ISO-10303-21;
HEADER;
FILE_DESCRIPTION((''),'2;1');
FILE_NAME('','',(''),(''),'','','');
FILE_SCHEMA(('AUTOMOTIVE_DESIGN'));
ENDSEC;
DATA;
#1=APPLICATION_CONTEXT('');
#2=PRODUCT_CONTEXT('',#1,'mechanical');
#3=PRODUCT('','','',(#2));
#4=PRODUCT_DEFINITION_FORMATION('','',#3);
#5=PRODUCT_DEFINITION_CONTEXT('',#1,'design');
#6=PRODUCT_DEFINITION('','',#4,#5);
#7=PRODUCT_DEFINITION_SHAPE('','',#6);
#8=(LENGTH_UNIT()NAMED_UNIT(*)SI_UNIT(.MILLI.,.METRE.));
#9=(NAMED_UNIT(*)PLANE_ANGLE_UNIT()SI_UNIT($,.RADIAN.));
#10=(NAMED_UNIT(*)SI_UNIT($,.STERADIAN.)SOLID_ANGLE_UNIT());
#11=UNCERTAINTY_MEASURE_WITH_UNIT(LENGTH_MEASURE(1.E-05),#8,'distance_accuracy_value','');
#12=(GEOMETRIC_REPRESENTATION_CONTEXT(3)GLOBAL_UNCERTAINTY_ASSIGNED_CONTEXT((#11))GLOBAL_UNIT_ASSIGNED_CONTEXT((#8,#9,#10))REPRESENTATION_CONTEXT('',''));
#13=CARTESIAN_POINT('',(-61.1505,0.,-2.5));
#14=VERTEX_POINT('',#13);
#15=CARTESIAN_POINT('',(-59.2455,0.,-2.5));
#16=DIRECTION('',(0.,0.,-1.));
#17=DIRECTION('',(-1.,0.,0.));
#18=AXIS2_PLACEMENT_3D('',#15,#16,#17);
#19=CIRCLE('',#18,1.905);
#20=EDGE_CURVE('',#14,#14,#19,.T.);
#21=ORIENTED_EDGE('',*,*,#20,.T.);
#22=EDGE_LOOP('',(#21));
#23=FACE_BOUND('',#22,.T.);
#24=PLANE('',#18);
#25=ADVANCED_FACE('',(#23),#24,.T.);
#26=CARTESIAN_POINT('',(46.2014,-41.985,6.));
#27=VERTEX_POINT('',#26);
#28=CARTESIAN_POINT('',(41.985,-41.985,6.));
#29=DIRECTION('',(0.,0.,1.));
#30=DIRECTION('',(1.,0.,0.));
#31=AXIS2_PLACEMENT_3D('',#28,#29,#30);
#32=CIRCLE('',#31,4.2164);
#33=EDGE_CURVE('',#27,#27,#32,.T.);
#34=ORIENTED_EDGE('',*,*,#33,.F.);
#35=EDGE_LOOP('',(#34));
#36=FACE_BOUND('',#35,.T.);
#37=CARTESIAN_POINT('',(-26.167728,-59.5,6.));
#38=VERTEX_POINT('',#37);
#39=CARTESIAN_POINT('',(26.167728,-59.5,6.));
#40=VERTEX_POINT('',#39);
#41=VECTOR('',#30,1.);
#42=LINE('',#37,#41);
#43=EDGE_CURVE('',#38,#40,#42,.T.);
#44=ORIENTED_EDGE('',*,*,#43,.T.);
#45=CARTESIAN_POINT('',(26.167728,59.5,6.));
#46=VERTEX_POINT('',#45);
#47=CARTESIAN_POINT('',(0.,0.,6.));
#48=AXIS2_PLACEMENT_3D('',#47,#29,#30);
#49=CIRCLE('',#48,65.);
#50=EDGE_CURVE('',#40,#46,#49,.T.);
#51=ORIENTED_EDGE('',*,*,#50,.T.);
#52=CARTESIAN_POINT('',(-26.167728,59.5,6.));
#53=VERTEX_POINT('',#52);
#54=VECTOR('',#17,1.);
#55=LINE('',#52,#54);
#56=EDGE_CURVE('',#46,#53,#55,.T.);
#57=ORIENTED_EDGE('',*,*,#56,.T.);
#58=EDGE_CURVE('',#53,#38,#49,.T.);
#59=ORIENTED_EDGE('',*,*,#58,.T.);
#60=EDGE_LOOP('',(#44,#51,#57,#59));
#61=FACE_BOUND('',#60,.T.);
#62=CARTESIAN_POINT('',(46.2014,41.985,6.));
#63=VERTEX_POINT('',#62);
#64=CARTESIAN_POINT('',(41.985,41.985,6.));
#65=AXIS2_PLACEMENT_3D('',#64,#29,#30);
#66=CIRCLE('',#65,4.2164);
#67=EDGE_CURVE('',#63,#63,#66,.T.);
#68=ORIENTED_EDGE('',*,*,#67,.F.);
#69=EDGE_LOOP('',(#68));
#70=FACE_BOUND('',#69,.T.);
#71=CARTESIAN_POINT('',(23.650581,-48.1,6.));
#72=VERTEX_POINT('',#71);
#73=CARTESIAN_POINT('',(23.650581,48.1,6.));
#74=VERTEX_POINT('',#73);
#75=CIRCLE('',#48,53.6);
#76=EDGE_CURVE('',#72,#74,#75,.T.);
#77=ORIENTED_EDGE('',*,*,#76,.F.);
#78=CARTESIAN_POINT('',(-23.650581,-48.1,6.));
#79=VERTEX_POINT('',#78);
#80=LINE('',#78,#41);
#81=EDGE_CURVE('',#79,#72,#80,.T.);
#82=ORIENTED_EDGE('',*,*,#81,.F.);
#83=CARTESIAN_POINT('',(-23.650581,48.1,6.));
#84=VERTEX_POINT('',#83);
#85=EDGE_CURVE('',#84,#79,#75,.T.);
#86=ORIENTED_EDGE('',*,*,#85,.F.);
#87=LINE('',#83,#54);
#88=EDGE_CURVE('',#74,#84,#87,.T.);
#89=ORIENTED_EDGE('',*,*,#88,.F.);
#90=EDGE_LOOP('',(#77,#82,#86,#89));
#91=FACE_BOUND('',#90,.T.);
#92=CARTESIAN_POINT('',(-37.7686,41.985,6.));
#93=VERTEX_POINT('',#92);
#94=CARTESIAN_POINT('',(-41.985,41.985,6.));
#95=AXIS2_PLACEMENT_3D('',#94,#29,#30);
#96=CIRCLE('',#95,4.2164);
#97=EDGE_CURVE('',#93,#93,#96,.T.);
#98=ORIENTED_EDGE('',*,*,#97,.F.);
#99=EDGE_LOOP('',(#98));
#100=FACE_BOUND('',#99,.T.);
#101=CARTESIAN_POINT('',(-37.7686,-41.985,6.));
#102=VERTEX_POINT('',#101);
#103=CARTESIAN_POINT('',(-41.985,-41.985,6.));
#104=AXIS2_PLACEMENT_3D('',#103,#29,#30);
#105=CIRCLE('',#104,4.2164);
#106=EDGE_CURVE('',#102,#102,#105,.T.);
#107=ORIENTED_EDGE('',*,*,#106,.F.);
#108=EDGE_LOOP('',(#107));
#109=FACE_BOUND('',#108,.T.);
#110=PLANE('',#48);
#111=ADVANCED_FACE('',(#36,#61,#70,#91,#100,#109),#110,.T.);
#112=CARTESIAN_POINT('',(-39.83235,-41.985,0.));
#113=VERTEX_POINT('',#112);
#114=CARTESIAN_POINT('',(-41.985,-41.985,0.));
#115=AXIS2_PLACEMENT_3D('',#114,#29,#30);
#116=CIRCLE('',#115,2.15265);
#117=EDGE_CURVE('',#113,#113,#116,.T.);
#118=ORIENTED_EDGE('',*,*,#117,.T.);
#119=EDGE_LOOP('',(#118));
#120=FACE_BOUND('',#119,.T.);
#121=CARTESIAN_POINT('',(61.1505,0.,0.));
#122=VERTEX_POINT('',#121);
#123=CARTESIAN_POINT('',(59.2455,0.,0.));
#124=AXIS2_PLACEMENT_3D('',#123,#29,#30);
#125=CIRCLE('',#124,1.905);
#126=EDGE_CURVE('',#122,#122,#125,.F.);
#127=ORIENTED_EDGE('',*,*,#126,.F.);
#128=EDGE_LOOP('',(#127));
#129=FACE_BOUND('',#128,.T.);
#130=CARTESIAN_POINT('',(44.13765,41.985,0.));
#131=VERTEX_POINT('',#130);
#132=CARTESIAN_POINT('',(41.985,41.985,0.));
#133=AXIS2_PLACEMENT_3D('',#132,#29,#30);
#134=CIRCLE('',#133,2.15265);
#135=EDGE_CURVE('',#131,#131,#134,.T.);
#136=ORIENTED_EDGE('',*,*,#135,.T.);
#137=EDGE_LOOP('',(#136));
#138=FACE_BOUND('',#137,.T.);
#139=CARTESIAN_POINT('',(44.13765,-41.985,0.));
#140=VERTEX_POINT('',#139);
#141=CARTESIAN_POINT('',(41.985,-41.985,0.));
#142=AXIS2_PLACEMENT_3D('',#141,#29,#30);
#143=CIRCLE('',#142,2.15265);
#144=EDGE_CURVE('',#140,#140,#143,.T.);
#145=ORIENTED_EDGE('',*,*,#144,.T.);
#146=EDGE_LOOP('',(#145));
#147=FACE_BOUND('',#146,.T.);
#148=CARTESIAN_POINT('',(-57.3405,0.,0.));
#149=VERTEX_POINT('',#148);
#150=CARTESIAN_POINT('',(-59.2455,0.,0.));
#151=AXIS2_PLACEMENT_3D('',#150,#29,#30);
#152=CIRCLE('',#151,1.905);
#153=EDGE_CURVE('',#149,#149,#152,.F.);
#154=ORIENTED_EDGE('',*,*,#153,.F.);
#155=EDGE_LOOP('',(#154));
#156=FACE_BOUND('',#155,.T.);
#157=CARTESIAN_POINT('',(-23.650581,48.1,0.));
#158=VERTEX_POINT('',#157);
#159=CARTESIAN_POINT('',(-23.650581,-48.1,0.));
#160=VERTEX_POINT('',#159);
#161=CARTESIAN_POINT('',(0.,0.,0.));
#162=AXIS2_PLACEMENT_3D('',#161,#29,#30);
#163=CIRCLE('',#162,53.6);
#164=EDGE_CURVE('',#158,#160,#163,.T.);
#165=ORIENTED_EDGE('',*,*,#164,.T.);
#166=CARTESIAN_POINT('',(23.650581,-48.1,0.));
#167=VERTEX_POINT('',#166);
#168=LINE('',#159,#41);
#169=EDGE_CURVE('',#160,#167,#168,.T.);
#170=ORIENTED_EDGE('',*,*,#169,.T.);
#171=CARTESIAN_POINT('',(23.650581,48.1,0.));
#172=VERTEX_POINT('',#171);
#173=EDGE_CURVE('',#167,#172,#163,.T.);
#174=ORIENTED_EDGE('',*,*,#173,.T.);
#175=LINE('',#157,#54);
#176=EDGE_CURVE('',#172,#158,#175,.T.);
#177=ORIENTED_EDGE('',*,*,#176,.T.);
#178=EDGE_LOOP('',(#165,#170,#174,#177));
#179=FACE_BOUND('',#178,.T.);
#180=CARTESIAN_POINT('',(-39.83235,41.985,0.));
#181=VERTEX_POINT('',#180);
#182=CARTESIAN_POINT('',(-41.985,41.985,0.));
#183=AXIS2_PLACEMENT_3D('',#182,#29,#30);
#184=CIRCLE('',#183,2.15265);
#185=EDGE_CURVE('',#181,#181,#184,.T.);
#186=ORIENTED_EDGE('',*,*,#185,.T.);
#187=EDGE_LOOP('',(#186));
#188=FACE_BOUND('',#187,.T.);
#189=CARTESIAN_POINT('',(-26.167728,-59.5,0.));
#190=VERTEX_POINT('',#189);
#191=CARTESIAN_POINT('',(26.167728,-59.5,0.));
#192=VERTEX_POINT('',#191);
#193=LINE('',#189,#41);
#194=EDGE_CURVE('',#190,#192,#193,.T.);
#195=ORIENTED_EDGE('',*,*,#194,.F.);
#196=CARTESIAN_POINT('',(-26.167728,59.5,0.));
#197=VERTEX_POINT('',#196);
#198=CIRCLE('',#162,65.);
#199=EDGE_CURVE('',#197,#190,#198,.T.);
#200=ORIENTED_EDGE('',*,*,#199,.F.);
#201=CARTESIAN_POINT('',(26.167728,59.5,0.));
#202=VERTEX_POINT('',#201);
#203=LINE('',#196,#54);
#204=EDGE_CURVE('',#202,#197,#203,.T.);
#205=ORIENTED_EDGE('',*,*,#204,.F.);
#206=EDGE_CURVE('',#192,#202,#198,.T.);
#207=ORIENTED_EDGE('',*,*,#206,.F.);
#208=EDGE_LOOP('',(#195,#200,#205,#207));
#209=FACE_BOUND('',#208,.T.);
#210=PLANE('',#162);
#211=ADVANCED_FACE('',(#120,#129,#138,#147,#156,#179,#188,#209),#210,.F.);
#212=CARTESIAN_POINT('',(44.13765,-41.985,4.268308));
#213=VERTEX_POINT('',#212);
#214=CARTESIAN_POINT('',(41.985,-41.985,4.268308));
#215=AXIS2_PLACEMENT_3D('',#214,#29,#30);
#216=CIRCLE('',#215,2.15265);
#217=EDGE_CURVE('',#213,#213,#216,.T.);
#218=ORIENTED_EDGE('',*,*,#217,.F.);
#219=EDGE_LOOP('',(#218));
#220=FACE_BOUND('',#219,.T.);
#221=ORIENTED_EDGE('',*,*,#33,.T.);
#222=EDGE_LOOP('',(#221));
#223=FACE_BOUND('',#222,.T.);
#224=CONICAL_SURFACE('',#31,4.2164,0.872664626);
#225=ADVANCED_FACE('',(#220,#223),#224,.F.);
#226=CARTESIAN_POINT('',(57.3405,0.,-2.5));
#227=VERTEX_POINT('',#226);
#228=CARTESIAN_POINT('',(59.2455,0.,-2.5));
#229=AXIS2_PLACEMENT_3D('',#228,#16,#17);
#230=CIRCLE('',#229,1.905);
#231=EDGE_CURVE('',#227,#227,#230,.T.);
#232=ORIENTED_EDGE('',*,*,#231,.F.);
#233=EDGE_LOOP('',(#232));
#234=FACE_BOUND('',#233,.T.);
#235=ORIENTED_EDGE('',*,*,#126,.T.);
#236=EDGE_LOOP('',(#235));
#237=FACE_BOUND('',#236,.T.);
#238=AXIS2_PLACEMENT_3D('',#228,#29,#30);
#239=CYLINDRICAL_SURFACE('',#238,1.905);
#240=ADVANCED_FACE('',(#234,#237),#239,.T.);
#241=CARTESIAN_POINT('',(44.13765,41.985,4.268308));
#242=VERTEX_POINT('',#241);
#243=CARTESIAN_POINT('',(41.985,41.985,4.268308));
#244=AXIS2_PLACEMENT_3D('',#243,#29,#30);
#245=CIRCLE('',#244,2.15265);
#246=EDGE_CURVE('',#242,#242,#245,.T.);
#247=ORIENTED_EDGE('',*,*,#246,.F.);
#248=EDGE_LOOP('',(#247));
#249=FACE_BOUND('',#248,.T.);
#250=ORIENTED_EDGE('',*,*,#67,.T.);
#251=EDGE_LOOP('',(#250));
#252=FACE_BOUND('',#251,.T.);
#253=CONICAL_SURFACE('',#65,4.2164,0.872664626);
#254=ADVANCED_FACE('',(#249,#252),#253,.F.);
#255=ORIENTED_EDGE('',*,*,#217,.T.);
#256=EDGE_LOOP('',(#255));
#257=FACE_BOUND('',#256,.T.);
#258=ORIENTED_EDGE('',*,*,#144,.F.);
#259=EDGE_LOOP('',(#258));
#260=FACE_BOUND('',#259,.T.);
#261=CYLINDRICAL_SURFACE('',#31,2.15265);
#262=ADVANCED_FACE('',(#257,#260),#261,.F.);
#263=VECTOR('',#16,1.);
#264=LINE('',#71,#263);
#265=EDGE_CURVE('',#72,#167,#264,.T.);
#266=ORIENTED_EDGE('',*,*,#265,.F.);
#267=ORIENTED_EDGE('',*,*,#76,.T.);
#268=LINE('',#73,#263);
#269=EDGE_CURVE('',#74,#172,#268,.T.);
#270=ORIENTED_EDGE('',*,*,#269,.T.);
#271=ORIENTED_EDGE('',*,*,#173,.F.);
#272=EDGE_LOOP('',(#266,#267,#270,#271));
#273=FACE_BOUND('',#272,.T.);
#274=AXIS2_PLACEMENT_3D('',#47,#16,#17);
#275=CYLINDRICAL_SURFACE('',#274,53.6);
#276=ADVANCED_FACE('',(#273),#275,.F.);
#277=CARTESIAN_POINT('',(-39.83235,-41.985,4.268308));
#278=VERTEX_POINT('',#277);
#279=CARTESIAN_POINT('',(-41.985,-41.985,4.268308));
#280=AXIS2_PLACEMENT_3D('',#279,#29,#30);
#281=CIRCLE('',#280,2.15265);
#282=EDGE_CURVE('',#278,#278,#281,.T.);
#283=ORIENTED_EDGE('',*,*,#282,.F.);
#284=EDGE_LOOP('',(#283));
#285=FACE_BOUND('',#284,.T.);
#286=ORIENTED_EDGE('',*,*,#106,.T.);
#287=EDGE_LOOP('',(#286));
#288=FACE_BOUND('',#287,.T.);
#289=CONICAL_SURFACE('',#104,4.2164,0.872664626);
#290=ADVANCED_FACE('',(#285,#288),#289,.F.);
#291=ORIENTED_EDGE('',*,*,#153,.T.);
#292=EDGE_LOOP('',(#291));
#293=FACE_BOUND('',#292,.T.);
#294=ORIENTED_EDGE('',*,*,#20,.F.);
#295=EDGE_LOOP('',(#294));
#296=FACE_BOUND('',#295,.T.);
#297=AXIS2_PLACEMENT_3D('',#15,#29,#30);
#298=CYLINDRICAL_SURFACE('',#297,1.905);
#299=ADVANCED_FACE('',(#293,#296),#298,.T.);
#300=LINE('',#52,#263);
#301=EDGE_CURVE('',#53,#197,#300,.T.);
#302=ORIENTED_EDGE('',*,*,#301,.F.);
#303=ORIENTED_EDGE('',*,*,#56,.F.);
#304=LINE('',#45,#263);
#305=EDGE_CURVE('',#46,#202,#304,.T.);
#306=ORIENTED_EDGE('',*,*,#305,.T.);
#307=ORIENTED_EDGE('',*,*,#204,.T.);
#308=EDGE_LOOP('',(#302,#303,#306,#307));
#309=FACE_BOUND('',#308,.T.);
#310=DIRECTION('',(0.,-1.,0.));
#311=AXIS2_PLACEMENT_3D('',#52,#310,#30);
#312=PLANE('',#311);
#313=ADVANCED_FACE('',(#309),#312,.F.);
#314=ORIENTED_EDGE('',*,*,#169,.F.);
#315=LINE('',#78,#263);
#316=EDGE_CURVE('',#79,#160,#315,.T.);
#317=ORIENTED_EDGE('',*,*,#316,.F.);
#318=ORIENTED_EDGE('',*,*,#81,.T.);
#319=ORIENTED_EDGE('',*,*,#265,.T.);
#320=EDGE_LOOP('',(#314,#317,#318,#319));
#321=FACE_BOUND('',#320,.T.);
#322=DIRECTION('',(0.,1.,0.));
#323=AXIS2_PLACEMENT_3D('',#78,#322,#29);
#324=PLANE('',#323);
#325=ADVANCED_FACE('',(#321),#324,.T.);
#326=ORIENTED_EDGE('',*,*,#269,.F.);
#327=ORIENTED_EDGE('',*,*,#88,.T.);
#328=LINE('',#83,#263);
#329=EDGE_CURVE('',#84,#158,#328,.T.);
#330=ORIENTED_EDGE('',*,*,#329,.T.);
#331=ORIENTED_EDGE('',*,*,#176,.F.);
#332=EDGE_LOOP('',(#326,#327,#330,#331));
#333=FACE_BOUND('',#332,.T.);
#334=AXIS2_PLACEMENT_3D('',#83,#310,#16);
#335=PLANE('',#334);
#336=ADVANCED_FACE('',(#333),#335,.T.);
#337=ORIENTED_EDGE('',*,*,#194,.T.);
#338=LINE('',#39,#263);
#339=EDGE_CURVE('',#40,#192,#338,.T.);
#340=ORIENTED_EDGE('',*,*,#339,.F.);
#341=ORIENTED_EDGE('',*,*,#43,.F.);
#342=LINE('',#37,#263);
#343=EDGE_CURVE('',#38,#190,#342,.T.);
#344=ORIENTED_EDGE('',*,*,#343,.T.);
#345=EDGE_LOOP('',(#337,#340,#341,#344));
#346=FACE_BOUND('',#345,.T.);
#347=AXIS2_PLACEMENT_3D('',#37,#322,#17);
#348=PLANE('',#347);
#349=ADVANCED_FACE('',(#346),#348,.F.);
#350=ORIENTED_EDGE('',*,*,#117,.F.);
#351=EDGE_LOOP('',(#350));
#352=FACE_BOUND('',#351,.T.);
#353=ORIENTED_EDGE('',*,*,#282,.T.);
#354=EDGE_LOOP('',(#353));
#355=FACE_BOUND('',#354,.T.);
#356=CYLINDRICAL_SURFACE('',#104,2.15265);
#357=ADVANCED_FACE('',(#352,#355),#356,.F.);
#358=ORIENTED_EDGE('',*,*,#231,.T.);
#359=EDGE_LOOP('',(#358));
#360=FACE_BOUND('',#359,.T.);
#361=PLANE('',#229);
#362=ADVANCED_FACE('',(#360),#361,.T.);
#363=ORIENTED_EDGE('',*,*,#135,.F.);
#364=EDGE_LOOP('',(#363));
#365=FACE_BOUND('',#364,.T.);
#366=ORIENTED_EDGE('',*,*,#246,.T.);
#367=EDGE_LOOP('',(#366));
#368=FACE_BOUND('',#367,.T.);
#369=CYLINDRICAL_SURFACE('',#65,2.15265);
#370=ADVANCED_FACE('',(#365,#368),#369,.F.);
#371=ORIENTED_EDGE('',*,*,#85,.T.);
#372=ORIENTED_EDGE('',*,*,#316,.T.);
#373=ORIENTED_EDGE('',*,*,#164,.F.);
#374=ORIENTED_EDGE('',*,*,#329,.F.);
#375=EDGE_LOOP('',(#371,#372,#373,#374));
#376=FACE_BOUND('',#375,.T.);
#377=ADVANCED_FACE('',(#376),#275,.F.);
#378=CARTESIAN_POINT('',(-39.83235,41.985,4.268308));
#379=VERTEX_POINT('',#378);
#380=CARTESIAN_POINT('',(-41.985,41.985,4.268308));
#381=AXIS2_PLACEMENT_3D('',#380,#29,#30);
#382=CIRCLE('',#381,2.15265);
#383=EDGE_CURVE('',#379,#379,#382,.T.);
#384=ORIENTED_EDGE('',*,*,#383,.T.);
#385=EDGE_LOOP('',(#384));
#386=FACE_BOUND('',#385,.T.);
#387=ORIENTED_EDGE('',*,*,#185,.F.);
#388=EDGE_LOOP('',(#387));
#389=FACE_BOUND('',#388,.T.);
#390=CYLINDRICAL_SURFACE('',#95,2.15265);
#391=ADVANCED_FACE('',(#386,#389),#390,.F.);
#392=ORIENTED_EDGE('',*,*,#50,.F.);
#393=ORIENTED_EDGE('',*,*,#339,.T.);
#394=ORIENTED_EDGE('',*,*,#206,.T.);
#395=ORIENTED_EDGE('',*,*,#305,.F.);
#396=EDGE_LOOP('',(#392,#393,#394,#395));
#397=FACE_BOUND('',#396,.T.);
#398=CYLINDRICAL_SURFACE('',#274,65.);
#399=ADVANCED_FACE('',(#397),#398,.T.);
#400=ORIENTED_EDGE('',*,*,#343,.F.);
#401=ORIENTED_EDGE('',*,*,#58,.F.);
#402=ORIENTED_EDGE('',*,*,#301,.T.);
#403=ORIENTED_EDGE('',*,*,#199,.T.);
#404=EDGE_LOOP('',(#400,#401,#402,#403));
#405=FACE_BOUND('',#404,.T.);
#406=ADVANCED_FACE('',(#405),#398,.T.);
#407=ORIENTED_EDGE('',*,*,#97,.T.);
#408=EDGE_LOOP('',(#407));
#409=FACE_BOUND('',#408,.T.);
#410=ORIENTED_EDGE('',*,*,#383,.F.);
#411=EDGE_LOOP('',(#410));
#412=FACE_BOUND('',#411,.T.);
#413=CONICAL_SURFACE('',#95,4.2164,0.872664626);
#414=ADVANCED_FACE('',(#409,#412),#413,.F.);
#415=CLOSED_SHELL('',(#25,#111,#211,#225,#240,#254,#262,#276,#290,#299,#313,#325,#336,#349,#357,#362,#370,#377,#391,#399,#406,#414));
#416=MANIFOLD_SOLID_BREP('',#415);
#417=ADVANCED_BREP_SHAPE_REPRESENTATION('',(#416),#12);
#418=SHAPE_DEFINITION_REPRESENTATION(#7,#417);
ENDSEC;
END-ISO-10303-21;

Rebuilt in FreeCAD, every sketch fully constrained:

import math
import FreeCAD as App
import Part
import Sketcher

V = App.Vector
Q = App.Units.Quantity

doc = App.newDocument("Part")
params = doc.addObject("Spreadsheet::Sheet", "Params")
for row, (alias, value) in enumerate([
    ("sketch1_radius", "65 mm"),
    ("sketch1_radius2", "53.6 mm"),
    ("pad1_length", "6 mm"),
    ("hole_diameter", "4.3053 mm"),
    ("hole_csink_diameter", "8.4328 mm"),
    ("sketch3_diameter", "3.81 mm"),
    ("pad2_length", "2.5 mm"),
], start=1):
    params.set(f"A{row}", alias)
    params.set(f"B{row}", "=" + value)
    params.setAlias(f"B{row}", alias)

body = doc.addObject("PartDesign::Body", "Body")

# Sketch on XY plane
sketch1 = body.newObject("Sketcher::SketchObject", "Sketch")
sketch1.AttachmentSupport = (doc.getObject("XY_Plane"), [""])
sketch1.MapMode = "FlatFace"
sketch1.addGeometry([
    Part.LineSegment(V(26, 60, 0), V(-26, 60, 0)),  # 0
    Part.ArcOfCircle(Part.Circle(V(0, 0, 0), V(0, 0, 1), 65), math.radians(114), math.radians(246)),  # 1
    Part.LineSegment(V(-26, -60, 0), V(26, -60, 0)),  # 2
    Part.ArcOfCircle(Part.Circle(V(0, 0, 0), V(0, 0, 1), 65), math.radians(-66), math.radians(66)),  # 3
    Part.LineSegment(V(-24, 48, 0), V(24, 48, 0)),  # 4
    Part.ArcOfCircle(Part.Circle(V(0, 0, 0), V(0, 0, 1), 54), math.radians(-64), math.radians(64)),  # 5
    Part.LineSegment(V(24, -48, 0), V(-24, -48, 0)),  # 6
    Part.ArcOfCircle(Part.Circle(V(0, 0, 0), V(0, 0, 1), 54), math.radians(116), math.radians(244)),  # 7
], False)
sketch1.addConstraint([
    Sketcher.Constraint("Coincident", 0, 2, 1, 1),
    Sketcher.Constraint("Coincident", 1, 2, 2, 1),
    Sketcher.Constraint("Coincident", 2, 2, 3, 1),
    Sketcher.Constraint("Coincident", 3, 2, 0, 1),
    Sketcher.Constraint("Coincident", 4, 2, 5, 2),
    Sketcher.Constraint("Coincident", 5, 1, 6, 1),
    Sketcher.Constraint("Coincident", 6, 2, 7, 2),
    Sketcher.Constraint("Coincident", 7, 1, 4, 1),
    Sketcher.Constraint("Horizontal", 0),
    Sketcher.Constraint("Horizontal", 2),
    Sketcher.Constraint("Horizontal", 4),
    Sketcher.Constraint("Horizontal", 6),
    Sketcher.Constraint("Coincident", 1, 3, -1, 1),
    Sketcher.Constraint("Coincident", 3, 3, -1, 1),
    Sketcher.Constraint("Coincident", 5, 3, -1, 1),
    Sketcher.Constraint("Coincident", 7, 3, -1, 1),
    Sketcher.Constraint("Equal", 1, 3),
    Sketcher.Constraint("Equal", 5, 7),
    Sketcher.Constraint("Vertical", 0, 2, 1, 2),
    Sketcher.Constraint("Vertical", 4, 2, 5, 1),
    Sketcher.Constraint("Radius", 1, Q("65 mm")),
    Sketcher.Constraint("Radius", 5, Q("53.6 mm")),
    Sketcher.Constraint("DistanceY", 1, 2, 0, 2, Q("119 mm")),
    Sketcher.Constraint("DistanceY", -1, 1, 4, 2, Q("48.1 mm")),
])
sketch1.setExpression("Constraints[20]", "Params.sketch1_radius")
sketch1.setExpression("Constraints[21]", "Params.sketch1_radius2")
pad1 = body.newObject("PartDesign::Pad", "Pad")
pad1.Profile = sketch1
pad1.setExpression("Length", "Params.pad1_length")

# Sketch on XY plane
sketch2 = body.newObject("Sketcher::SketchObject", "Sketch001")
sketch2.AttachmentSupport = (doc.getObject("XY_Plane"), [""])
sketch2.MapMode = "FlatFace"
sketch2.AttachmentOffset = App.Placement(V(0, 0, 6), App.Rotation())
sketch2.addGeometry([
    Part.Circle(V(0, 0, 0), V(0, 0, 1), 2.2),  # 0
    Part.Circle(V(42, 42, 0), V(0, 0, 1), 2.2),  # 1
    Part.Circle(V(-42, -42, 0), V(0, 0, 1), 2.2),  # 2
    Part.Circle(V(-42, 42, 0), V(0, 0, 1), 2.2),  # 3
    Part.Circle(V(42, -42, 0), V(0, 0, 1), 2.2),  # 4
], False)
sketch2.addConstraint([
    Sketcher.Constraint("Coincident", 0, 3, -1, 1),
    Sketcher.Constraint("Equal", 0, 1),
    Sketcher.Constraint("Equal", 1, 2),
    Sketcher.Constraint("Equal", 2, 3),
    Sketcher.Constraint("Equal", 3, 4),
    Sketcher.Constraint("Symmetric", 1, 3, 2, 3, -1, 1),
    Sketcher.Constraint("Symmetric", 3, 3, 4, 3, -1, 1),
    Sketcher.Constraint("Symmetric", 1, 3, 3, 3, -2),
    Sketcher.Constraint("Diameter", 0, Q("4.3053 mm")),
    Sketcher.Constraint("DistanceX", 2, 3, 1, 3, Q("83.97 mm")),
    Sketcher.Constraint("DistanceY", 2, 3, 1, 3, Q("83.97 mm")),
])
doc.recompute()
hole = body.newObject("PartDesign::Hole", "Hole")
hole.Profile = sketch2
hole.ThreadType = "None"
hole.setExpression("Diameter", "Params.hole_diameter")
hole.DepthType = "ThroughAll"
hole.HoleCutType = "Countersink"
hole.setExpression("HoleCutDiameter", "Params.hole_csink_diameter")
hole.HoleCutCountersinkAngle = 100

# Sketch on XY plane
sketch3 = body.newObject("Sketcher::SketchObject", "Sketch002")
sketch3.AttachmentSupport = (doc.getObject("XY_Plane"), [""])
sketch3.MapMode = "FlatFace"
sketch3.addGeometry([
    Part.Circle(V(59.2, 0, 0), V(0, 0, 1), 1.9),
    Part.Circle(V(-59.2, 0, 0), V(0, 0, 1), 1.9),
], False)
sketch3.addConstraint([
    Sketcher.Constraint("Equal", 0, 1),
    Sketcher.Constraint("Symmetric", 0, 3, 1, 3, -1, 1),
    Sketcher.Constraint("PointOnObject", 0, 3, -1),
    Sketcher.Constraint("Diameter", 0, Q("3.81 mm")),
    Sketcher.Constraint("DistanceX", 1, 3, 0, 3, Q("118.491 mm")),
])
sketch3.setExpression("Constraints[3]", "Params.sketch3_diameter")
pad2 = body.newObject("PartDesign::Pad", "Pad001")
pad2.Profile = sketch3
pad2.setExpression("Length", "Params.pad2_length")
pad2.Reversed = True

doc.recompute()
